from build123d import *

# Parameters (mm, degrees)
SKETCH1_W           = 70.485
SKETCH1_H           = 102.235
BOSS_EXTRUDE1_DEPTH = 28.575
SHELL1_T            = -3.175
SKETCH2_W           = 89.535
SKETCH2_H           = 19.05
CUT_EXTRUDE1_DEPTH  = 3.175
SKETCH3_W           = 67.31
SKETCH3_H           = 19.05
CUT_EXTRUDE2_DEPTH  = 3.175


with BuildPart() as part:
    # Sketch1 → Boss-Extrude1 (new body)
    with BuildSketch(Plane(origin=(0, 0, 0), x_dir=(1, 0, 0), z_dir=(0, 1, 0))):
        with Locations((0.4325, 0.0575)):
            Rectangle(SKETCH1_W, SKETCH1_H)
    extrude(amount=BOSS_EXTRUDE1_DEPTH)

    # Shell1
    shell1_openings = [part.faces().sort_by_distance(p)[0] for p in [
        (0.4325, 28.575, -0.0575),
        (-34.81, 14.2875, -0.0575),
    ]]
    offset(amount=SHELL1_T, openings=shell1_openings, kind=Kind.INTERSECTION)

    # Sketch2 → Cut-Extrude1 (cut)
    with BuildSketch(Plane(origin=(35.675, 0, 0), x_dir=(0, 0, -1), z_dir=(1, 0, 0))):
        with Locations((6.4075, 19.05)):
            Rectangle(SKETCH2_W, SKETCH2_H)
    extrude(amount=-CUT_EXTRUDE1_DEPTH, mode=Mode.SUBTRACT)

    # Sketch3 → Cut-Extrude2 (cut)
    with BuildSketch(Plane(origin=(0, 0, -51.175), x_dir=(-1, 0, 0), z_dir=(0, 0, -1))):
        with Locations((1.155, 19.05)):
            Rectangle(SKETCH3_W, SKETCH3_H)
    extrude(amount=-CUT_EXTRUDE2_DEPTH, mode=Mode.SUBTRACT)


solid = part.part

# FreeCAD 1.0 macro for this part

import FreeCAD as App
import Part
import Sketcher

V = App.Vector
Q = App.Units.Quantity


def faces_at(feature, points):
    """Names of the faces that lie closest to the given points."""
    faces = feature.Shape.Faces
    near = lambda p: min(range(len(faces)), key=lambda i: faces[i].distToShape(Part.Vertex(*p))[0])
    return sorted({f"Face{near(p) + 1}" for p in points})


def add_polygon(sketch, points):
    """Adds a closed chain of lines whose ends are joined by coincident constraints."""
    first, n = sketch.GeometryCount, len(points)
    for a, b in zip(points, points[1:] + points[:1]):
        sketch.addGeometry(Part.LineSegment(App.Vector(*a, 0), App.Vector(*b, 0)), False)
    for i in range(n):
        sketch.addConstraint(Sketcher.Constraint("Coincident", first + i, 2, first + (i + 1) % n, 1))

doc = App.newDocument("Part")
body = doc.addObject("PartDesign::Body", "Body")

# Sketch on XZ plane
sketch1 = body.newObject("Sketcher::SketchObject", "Sketch")
sketch1.AttachmentSupport = (doc.getObject("XZ_Plane"), [""])
sketch1.MapMode = "FlatFace"
add_polygon(sketch1, [(-35, -51), (-35, 51), (36, 51), (36, -51)])  # lines 0-3
sketch1.addConstraint([
    Sketcher.Constraint("Vertical", 0),
    Sketcher.Constraint("Horizontal", 1),
    Sketcher.Constraint("Vertical", 2),
    Sketcher.Constraint("Horizontal", 3),
    Sketcher.Constraint("DistanceX", 1, 1, 1, 2, Q("2.775 in")),
    Sketcher.Constraint("DistanceY", 0, 1, 0, 2, Q("4.025 in")),
    Sketcher.Constraint("DistanceX", 0, 2, -1, 1, Q("34.81 mm")),
    Sketcher.Constraint("DistanceY", -1, 1, 0, 2, Q("51.06 mm")),
])
pad1 = body.newObject("PartDesign::Pad", "Pad")
pad1.Profile = sketch1
pad1.Length = Q("1.125 in")
pad1.Reversed = True
doc.recompute()

thickness = body.newObject("PartDesign::Thickness", "Thickness")
thickness.Base = (pad1, faces_at(pad1, [(0.432, 28.575, -0.058), (-34.81, 14.287, -0.058)]))
thickness.Value = Q("0.125 in")
thickness.Reversed = True
thickness.Join = "Intersection"

# Sketch on YZ plane
sketch2 = body.newObject("Sketcher::SketchObject", "Sketch001")
sketch2.AttachmentSupport = (doc.getObject("YZ_Plane"), [""])
sketch2.MapMode = "FlatFace"
sketch2.AttachmentOffset = App.Placement(V(0, 0, 35.675), App.Rotation())
add_polygon(sketch2, [(29, 38), (10, 38), (10, -51), (29, -51)])  # lines 0-3
sketch2.addConstraint([
    Sketcher.Constraint("Horizontal", 0),
    Sketcher.Constraint("Vertical", 1),
    Sketcher.Constraint("Horizontal", 2),
    Sketcher.Constraint("Vertical", 3),
    Sketcher.Constraint("DistanceX", 0, 2, 0, 1, Q("0.75 in")),
    Sketcher.Constraint("DistanceY", 1, 2, 1, 1, Q("3.525 in")),
    Sketcher.Constraint("DistanceX", -1, 1, 0, 2, Q("0.375 in")),
    Sketcher.Constraint("DistanceY", -1, 1, 0, 2, Q("38.36 mm")),
])
pocket1 = body.newObject("PartDesign::Pocket", "Pocket")
pocket1.Profile = sketch2
pocket1.Length = Q("0.125 in")

# Sketch on XY plane
sketch3 = body.newObject("Sketcher::SketchObject", "Sketch002")
sketch3.AttachmentSupport = (doc.getObject("XY_Plane"), [""])
sketch3.MapMode = "FlatFace"
sketch3.AttachmentOffset = App.Placement(V(0, 0, -51.175), App.Rotation())
add_polygon(sketch3, [(32, 29), (32, 10), (-35, 10), (-35, 29)])  # lines 0-3
sketch3.addConstraint([
    Sketcher.Constraint("Vertical", 0),
    Sketcher.Constraint("Horizontal", 1),
    Sketcher.Constraint("Vertical", 2),
    Sketcher.Constraint("Horizontal", 3),
    Sketcher.Constraint("DistanceX", 1, 2, 1, 1, Q("2.65 in")),
    Sketcher.Constraint("DistanceY", 0, 2, 0, 1, Q("0.75 in")),
    Sketcher.Constraint("DistanceY", -1, 1, 0, 2, Q("0.375 in")),
    Sketcher.Constraint("DistanceX", -1, 1, 0, 2, Q("32.5 mm")),
])
pocket2 = body.newObject("PartDesign::Pocket", "Pocket001")
pocket2.Profile = sketch3
pocket2.Length = Q("0.125 in")
pocket2.Reversed = True

doc.recompute()
